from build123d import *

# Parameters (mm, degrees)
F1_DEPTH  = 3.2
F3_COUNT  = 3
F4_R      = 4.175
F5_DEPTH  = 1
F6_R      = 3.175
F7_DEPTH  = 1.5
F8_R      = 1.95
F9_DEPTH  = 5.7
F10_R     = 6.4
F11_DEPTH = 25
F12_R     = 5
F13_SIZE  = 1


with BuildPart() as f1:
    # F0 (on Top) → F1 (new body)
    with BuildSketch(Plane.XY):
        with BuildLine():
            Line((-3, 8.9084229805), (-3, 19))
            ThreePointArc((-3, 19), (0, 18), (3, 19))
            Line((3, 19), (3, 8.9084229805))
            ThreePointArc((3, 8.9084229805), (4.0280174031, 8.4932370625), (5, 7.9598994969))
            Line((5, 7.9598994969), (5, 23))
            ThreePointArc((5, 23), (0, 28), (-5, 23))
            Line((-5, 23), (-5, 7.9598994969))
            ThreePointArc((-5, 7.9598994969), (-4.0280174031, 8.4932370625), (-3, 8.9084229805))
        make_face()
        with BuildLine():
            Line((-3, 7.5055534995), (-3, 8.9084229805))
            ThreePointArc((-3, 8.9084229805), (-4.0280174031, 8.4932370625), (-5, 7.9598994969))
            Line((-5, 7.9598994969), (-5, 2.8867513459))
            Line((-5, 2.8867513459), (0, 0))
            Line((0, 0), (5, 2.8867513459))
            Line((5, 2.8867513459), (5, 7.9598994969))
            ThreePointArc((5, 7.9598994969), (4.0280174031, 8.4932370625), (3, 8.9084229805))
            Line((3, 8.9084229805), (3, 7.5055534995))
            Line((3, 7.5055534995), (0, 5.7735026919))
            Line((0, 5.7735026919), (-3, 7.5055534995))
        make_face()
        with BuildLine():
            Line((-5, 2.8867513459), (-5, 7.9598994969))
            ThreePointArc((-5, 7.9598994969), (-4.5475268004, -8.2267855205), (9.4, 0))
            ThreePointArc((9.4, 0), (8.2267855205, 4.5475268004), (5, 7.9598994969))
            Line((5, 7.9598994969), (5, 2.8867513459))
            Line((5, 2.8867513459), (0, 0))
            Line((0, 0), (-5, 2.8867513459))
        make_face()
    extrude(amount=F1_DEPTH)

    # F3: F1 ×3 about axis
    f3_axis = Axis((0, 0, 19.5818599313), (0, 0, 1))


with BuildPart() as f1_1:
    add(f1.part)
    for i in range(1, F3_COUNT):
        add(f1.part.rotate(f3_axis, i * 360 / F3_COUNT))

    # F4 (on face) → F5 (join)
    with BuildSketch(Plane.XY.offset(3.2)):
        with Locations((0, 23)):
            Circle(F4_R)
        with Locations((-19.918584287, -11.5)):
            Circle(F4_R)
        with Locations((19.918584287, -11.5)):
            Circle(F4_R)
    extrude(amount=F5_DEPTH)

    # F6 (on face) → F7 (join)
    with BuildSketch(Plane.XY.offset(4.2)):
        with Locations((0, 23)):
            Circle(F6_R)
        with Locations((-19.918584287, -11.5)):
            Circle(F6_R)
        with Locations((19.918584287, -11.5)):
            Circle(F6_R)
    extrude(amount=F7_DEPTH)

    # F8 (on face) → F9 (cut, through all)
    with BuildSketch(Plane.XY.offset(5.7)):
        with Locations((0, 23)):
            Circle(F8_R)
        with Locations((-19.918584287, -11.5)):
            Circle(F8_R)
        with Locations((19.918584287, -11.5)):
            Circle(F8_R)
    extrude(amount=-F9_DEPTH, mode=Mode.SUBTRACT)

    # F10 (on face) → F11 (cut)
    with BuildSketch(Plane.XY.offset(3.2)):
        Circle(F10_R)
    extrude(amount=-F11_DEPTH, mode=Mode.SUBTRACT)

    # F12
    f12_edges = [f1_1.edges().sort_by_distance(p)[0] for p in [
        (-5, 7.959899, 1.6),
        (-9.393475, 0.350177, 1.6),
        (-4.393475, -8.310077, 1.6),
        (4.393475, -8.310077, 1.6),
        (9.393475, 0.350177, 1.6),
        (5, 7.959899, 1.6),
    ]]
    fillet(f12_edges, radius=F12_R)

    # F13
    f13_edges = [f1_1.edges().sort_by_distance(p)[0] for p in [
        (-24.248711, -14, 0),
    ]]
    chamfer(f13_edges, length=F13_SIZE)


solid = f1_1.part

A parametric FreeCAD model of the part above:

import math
import FreeCAD as App
import Part
import Sketcher

V = App.Vector
Q = App.Units.Quantity


def edges_at(feature, points):
    """Names of the edges that pass closest to the given points."""
    edges = feature.Shape.Edges
    near = lambda p: min(range(len(edges)), key=lambda i: edges[i].distToShape(Part.Vertex(*p))[0])
    return sorted({f"Edge{near(p) + 1}" for p in points})

doc = App.newDocument("Part")
body = doc.addObject("PartDesign::Body", "Body")

sketch1 = doc.addObject("Sketcher::SketchObject", "Sketch")
body.addObject(sketch1)
sketch1.AttachmentSupport = (doc.XY_Plane, [""])
sketch1.MapMode = "FlatFace"
sketch1.addGeometry([
    Part.ArcOfCircle(Part.Circle(V(0, 23, 0), V(0, 0, 1), 5), math.radians(0), math.radians(180)),
    Part.LineSegment(V(-5, 23, 0), V(-5, 8, 0)),
    Part.ArcOfCircle(Part.Circle(V(0, 0, 0), V(0, 0, 1), 9.4), math.radians(122), math.radians(360)),
    Part.ArcOfCircle(Part.Circle(V(0, 0, 0), V(0, 0, 1), 9.4), math.radians(0), math.radians(58)),
    Part.LineSegment(V(5, 8, 0), V(5, 23, 0)),
    Part.ArcOfCircle(Part.Circle(V(0, 23, 0), V(0, 0, 1), 5), math.radians(-127), math.radians(-53)),
    Part.LineSegment(V(3, 19, 0), V(3, 7.5, 0)),
    Part.LineSegment(V(3, 7.5, 0), V(0, 5.8, 0)),
    Part.LineSegment(V(0, 5.8, 0), V(-3, 7.5, 0)),
    Part.LineSegment(V(-3, 7.5, 0), V(-3, 19, 0)),
], False)
sketch1.addConstraint([
    Sketcher.Constraint("Tangent", 0, 2, 1, 1),
    Sketcher.Constraint("Coincident", 1, 2, 2, 1),
    Sketcher.Constraint("Tangent", 2, 2, 3, 1),
    Sketcher.Constraint("Coincident", 3, 2, 4, 1),
    Sketcher.Constraint("Tangent", 4, 2, 0, 1),
    Sketcher.Constraint("Coincident", 5, 2, 6, 1),
    Sketcher.Constraint("Coincident", 6, 2, 7, 1),
    Sketcher.Constraint("Coincident", 7, 2, 8, 1),
    Sketcher.Constraint("Coincident", 8, 2, 9, 1),
    Sketcher.Constraint("Coincident", 9, 2, 5, 1),
    Sketcher.Constraint("Vertical", 1),
    Sketcher.Constraint("Vertical", 4),
    Sketcher.Constraint("Vertical", 6),
    Sketcher.Constraint("Vertical", 9),
    Sketcher.Constraint("Coincident", 2, 3, -1, 1),
    Sketcher.Constraint("Coincident", 5, 3, 0, 3),
    Sketcher.Constraint("Equal", 2, 3),
    Sketcher.Constraint("Equal", 0, 5),
    Sketcher.Constraint("Symmetric", 6, 2, 8, 2, -2),
    Sketcher.Constraint("PointOnObject", 0, 3, -2),
    Sketcher.Constraint("PointOnObject", 2, 2, -1),
    Sketcher.Constraint("PointOnObject", 7, 2, -2),
    Sketcher.Constraint("Radius", 0, 5.0),
    Sketcher.Constraint("Radius", 2, 9.4),
    Sketcher.Constraint("Angle", 7, Q("-150 deg")),
    Sketcher.Constraint("DistanceY", -1, 1, 0, 3, 23.0),
    Sketcher.Constraint("DistanceX", -1, 1, 5, 2, 3.0),
    Sketcher.Constraint("DistanceY", 6, 2, 6, 1, 11.494447),
])
pad1 = doc.addObject("PartDesign::Pad", "Pad")
body.addObject(pad1)
pad1.Profile = sketch1
pad1.Length = 3.2
body2 = doc.addObject("PartDesign::Body", "Body001")
doc.recompute()

body2.BaseFeature = body
doc.recompute()

body3 = doc.addObject("PartDesign::Body", "Body002")
body3.BaseFeature = body
body3.Placement = App.Placement(V(0, 0, 0), App.Rotation(V(0, 0, 1), 120))
boolean = doc.addObject("PartDesign::Boolean", "Boolean")
body2.addObject(boolean)
boolean.Type = "Fuse"
boolean.addObjects([body3])
doc.recompute()

body.Placement = App.Placement(V(0, 0, 0), App.Rotation(V(0, 0, 1), 240))
boolean2 = doc.addObject("PartDesign::Boolean", "Boolean001")
body2.addObject(boolean2)
boolean2.Type = "Fuse"
boolean2.addObjects([body])

sketch2 = doc.addObject("Sketcher::SketchObject", "Sketch001")
body2.addObject(sketch2)
sketch2.AttachmentSupport = (doc.getObject("XY_Plane001"), [""])
sketch2.MapMode = "FlatFace"
sketch2.AttachmentOffset = App.Placement(V(0, 0, 3.2), App.Rotation())
sketch2.addGeometry([
    Part.Circle(V(0, 23, 0), V(0, 0, 1), 4.2),
    Part.Circle(V(-19.9, -11.5, 0), V(0, 0, 1), 4.2),
    Part.Circle(V(19.9, -11.5, 0), V(0, 0, 1), 4.2),
], False)
sketch2.addConstraint([
    Sketcher.Constraint("Equal", 0, 1),
    Sketcher.Constraint("Equal", 1, 2),
    Sketcher.Constraint("Symmetric", 1, 3, 2, 3, -2),
    Sketcher.Constraint("PointOnObject", 0, 3, -2),
    Sketcher.Constraint("Diameter", 0, 8.35),
    Sketcher.Constraint("DistanceY", -1, 1, 0, 3, 23.0),
    Sketcher.Constraint("DistanceY", 1, 3, -1, 1, 11.5),
    Sketcher.Constraint("DistanceX", 1, 3, 2, 3, 39.837169),
])
pad2 = doc.addObject("PartDesign::Pad", "Pad001")
body2.addObject(pad2)
pad2.Profile = sketch2
pad2.Length = 1

sketch3 = doc.addObject("Sketcher::SketchObject", "Sketch002")
body2.addObject(sketch3)
sketch3.AttachmentSupport = (doc.getObject("XY_Plane001"), [""])
sketch3.MapMode = "FlatFace"
sketch3.AttachmentOffset = App.Placement(V(0, 0, 4.2), App.Rotation())
sketch3.addGeometry([
    Part.Circle(V(0, 23, 0), V(0, 0, 1), 3.2),
    Part.Circle(V(-19.9, -11.5, 0), V(0, 0, 1), 3.2),
    Part.Circle(V(19.9, -11.5, 0), V(0, 0, 1), 3.2),
], False)
sketch3.addConstraint([
    Sketcher.Constraint("Equal", 0, 1),
    Sketcher.Constraint("Equal", 1, 2),
    Sketcher.Constraint("Symmetric", 1, 3, 2, 3, -2),
    Sketcher.Constraint("PointOnObject", 0, 3, -2),
    Sketcher.Constraint("Diameter", 0, 6.35),
    Sketcher.Constraint("DistanceY", -1, 1, 0, 3, 23.0),
    Sketcher.Constraint("DistanceY", 1, 3, -1, 1, 11.5),
    Sketcher.Constraint("DistanceX", 1, 3, 2, 3, 39.837169),
])
pad3 = doc.addObject("PartDesign::Pad", "Pad002")
body2.addObject(pad3)
pad3.Profile = sketch3
pad3.Length = 1.5

sketch4 = doc.addObject("Sketcher::SketchObject", "Sketch003")
body2.addObject(sketch4)
sketch4.AttachmentSupport = (doc.getObject("XY_Plane001"), [""])
sketch4.MapMode = "FlatFace"
sketch4.AttachmentOffset = App.Placement(V(0, 0, 5.7), App.Rotation())
sketch4.addGeometry([
    Part.Circle(V(0, 23, 0), V(0, 0, 1), 1.9),
    Part.Circle(V(-19.9, -11.5, 0), V(0, 0, 1), 1.9),
    Part.Circle(V(19.9, -11.5, 0), V(0, 0, 1), 1.9),
], False)
sketch4.addConstraint([
    Sketcher.Constraint("Equal", 0, 1),
    Sketcher.Constraint("Equal", 1, 2),
    Sketcher.Constraint("Symmetric", 1, 3, 2, 3, -2),
    Sketcher.Constraint("PointOnObject", 0, 3, -2),
    Sketcher.Constraint("Diameter", 0, 3.9),
    Sketcher.Constraint("DistanceY", -1, 1, 0, 3, 23.0),
    Sketcher.Constraint("DistanceY", 1, 3, -1, 1, 11.5),
    Sketcher.Constraint("DistanceX", 1, 3, 2, 3, 39.837169),
])
pocket1 = doc.addObject("PartDesign::Pocket", "Pocket")
body2.addObject(pocket1)
pocket1.Profile = sketch4
pocket1.Type = "ThroughAll"

sketch5 = doc.addObject("Sketcher::SketchObject", "Sketch004")
body2.addObject(sketch5)
sketch5.AttachmentSupport = (doc.getObject("XY_Plane001"), [""])
sketch5.MapMode = "FlatFace"
sketch5.AttachmentOffset = App.Placement(V(0, 0, 3.2), App.Rotation())
sketch5.addGeometry(Part.Circle(V(0, 0, 0), V(0, 0, 1), 6), False)
sketch5.addConstraint([
    Sketcher.Constraint("Coincident", 0, 3, -1, 1),
    Sketcher.Constraint("Diameter", 0, 12.8),
])
pocket2 = doc.addObject("PartDesign::Pocket", "Pocket001")
body2.addObject(pocket2)
pocket2.Profile = sketch5
pocket2.Length = 25
doc.recompute()

fillet = doc.addObject("PartDesign::Fillet", "Fillet")
body2.addObject(fillet)
fillet.Base = (pocket2, edges_at(pocket2, [
    (-5, 7.96, 1.6),
    (-9.393, 0.35, 1.6),
    (-4.393, -8.31, 1.6),
    (4.393, -8.31, 1.6),
    (9.393, 0.35, 1.6),
    (5, 7.96, 1.6),
]))
fillet.Radius = 5
doc.recompute()

chamfer = doc.addObject("PartDesign::Chamfer", "Chamfer")
body2.addObject(chamfer)
chamfer.Base = (fillet, edges_at(fillet, [(-24.249, -14, 0)]))
chamfer.Size = 1

doc.recompute()
